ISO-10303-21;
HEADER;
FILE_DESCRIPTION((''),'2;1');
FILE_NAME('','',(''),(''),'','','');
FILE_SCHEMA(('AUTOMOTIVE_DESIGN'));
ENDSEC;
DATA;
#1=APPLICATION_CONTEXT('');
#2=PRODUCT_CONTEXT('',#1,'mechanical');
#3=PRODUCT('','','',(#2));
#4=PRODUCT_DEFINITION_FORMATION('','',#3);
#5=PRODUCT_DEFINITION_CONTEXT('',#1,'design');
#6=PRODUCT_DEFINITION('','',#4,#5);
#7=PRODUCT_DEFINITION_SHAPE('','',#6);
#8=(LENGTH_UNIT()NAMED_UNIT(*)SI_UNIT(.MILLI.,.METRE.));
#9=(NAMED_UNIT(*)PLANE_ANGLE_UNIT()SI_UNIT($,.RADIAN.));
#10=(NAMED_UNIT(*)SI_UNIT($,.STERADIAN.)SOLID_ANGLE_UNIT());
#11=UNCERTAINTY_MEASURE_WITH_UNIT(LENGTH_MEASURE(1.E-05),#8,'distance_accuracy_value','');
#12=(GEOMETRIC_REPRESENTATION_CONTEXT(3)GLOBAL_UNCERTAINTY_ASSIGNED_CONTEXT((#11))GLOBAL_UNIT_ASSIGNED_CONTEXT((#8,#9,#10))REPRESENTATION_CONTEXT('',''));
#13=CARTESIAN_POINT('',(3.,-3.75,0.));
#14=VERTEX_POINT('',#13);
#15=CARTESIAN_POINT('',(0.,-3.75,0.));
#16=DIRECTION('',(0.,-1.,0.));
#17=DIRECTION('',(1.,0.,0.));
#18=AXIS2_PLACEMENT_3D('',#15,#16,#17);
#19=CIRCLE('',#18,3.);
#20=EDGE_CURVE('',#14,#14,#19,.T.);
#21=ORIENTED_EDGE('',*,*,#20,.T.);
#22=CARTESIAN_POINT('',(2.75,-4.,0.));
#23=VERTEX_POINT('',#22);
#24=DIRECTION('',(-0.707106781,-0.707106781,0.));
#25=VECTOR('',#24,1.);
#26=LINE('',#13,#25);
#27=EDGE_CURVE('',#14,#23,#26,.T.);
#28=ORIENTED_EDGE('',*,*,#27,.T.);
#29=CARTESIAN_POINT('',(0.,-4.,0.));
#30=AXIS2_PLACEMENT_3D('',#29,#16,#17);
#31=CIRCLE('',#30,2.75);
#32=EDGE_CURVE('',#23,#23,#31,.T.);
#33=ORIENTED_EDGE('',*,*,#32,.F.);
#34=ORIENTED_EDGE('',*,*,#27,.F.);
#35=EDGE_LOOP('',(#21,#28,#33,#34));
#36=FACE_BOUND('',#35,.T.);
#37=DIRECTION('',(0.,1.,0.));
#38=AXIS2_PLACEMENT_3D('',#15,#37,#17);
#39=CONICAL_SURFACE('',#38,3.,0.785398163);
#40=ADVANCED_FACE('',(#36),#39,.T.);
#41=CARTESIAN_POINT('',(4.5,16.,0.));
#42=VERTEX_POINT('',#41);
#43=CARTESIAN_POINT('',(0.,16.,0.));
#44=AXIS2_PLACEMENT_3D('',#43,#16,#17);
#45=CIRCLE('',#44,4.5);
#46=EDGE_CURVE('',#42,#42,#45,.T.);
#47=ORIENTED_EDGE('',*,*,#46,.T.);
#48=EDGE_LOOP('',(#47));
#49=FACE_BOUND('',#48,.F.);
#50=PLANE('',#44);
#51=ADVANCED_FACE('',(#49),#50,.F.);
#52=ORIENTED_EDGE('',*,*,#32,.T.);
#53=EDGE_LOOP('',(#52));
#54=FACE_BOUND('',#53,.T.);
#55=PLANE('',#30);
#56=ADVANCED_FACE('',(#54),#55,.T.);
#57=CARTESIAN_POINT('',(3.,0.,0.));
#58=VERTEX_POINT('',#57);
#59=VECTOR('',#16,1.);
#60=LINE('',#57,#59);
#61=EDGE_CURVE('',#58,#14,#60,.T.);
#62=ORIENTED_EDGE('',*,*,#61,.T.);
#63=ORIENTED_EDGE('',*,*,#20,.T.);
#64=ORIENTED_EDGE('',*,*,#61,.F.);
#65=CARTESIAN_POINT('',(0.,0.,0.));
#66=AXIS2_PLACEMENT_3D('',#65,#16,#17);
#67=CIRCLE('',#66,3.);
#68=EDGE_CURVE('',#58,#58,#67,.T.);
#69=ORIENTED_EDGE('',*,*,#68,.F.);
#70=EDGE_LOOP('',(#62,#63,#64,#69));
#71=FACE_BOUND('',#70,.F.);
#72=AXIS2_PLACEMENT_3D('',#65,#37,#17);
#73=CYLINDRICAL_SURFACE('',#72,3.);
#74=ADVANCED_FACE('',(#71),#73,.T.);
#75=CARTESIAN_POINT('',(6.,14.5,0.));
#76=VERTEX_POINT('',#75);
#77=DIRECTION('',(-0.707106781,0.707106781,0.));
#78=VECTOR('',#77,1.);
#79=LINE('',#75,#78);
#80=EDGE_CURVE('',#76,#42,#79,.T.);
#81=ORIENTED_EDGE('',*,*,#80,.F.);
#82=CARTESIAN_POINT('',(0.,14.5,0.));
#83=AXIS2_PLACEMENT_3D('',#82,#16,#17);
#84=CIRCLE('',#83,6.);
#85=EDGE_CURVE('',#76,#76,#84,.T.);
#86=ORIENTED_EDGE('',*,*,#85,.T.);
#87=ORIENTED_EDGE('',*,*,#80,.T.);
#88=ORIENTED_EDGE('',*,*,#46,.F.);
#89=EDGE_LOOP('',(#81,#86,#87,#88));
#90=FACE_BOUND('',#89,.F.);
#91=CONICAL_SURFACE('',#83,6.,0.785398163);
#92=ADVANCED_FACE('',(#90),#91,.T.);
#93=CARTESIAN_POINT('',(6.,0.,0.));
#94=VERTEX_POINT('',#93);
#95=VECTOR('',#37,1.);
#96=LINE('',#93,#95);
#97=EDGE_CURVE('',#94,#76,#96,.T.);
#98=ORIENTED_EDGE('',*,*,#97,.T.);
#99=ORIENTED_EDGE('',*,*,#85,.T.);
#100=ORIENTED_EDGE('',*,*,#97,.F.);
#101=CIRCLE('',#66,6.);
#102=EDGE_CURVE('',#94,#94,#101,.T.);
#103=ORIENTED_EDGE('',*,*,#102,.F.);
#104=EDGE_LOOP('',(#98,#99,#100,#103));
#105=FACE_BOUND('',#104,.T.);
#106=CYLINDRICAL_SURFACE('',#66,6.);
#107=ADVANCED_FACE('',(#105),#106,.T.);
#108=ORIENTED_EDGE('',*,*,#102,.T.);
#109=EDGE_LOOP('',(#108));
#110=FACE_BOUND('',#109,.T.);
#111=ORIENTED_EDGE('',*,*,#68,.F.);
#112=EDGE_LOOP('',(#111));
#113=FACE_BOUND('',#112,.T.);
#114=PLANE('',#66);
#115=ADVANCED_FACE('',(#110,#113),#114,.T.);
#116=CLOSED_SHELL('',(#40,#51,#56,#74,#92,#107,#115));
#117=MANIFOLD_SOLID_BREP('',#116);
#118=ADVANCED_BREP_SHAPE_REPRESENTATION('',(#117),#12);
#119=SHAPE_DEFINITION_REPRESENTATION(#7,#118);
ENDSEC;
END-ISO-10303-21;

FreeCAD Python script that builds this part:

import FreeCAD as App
import Part
import Sketcher
from FreeCAD import Vector
Q = App.Units.Quantity


def edges_at(feature, points):
    """Names of the edges that pass closest to the given points."""
    edges = feature.Shape.Edges
    near = lambda p: min(range(len(edges)), key=lambda i: edges[i].distToShape(Part.Vertex(*p))[0])
    return sorted({f"Edge{near(p) + 1}" for p in points})

doc = App.newDocument("Part")
body = doc.addObject("PartDesign::Body", "Body")

# Sketch on XZ plane
sketch1 = body.newObject("Sketcher::SketchObject", "Sketch")
sketch1.AttachmentSupport = (doc.getObject("XZ_Plane"), [""])
sketch1.MapMode = "FlatFace"
sketch1.addGeometry(Part.Circle(Vector(0, 0, 0), Vector(0, 0, 1), 6), False)
sketch1.addConstraint(Sketcher.Constraint("Coincident", 0, 3, -1, 1))
sketch1.addConstraint(Sketcher.Constraint("Diameter", 0, Q("12 mm")))
pad1 = body.newObject("PartDesign::Pad", "Pad")
pad1.Profile = sketch1
pad1.Length = 16
pad1.Reversed = True

# Sketch on XZ plane
sketch2 = body.newObject("Sketcher::SketchObject", "Sketch001")
sketch2.AttachmentSupport = (doc.getObject("XZ_Plane"), [""])
sketch2.MapMode = "FlatFace"
sketch2.addGeometry(Part.Circle(Vector(0, 0, 0), Vector(0, 0, 1), 3), False)
sketch2.addConstraint(Sketcher.Constraint("Coincident", 0, 3, -1, 1))
sketch2.addConstraint(Sketcher.Constraint("Diameter", 0, Q("6 mm")))
pad2 = body.newObject("PartDesign::Pad", "Pad001")
pad2.Profile = sketch2
pad2.Length = 4
doc.recompute()

chamfer = body.newObject("PartDesign::Chamfer", "Chamfer")
chamfer.Base = (pad2, edges_at(pad2, [(-3, -4, 0)]))
chamfer.Size = 0.25
doc.recompute()

chamfer2 = body.newObject("PartDesign::Chamfer", "Chamfer001")
chamfer2.Base = (chamfer, edges_at(chamfer, [(-6, 16, 0)]))
chamfer2.Size = 1.5

doc.recompute()
